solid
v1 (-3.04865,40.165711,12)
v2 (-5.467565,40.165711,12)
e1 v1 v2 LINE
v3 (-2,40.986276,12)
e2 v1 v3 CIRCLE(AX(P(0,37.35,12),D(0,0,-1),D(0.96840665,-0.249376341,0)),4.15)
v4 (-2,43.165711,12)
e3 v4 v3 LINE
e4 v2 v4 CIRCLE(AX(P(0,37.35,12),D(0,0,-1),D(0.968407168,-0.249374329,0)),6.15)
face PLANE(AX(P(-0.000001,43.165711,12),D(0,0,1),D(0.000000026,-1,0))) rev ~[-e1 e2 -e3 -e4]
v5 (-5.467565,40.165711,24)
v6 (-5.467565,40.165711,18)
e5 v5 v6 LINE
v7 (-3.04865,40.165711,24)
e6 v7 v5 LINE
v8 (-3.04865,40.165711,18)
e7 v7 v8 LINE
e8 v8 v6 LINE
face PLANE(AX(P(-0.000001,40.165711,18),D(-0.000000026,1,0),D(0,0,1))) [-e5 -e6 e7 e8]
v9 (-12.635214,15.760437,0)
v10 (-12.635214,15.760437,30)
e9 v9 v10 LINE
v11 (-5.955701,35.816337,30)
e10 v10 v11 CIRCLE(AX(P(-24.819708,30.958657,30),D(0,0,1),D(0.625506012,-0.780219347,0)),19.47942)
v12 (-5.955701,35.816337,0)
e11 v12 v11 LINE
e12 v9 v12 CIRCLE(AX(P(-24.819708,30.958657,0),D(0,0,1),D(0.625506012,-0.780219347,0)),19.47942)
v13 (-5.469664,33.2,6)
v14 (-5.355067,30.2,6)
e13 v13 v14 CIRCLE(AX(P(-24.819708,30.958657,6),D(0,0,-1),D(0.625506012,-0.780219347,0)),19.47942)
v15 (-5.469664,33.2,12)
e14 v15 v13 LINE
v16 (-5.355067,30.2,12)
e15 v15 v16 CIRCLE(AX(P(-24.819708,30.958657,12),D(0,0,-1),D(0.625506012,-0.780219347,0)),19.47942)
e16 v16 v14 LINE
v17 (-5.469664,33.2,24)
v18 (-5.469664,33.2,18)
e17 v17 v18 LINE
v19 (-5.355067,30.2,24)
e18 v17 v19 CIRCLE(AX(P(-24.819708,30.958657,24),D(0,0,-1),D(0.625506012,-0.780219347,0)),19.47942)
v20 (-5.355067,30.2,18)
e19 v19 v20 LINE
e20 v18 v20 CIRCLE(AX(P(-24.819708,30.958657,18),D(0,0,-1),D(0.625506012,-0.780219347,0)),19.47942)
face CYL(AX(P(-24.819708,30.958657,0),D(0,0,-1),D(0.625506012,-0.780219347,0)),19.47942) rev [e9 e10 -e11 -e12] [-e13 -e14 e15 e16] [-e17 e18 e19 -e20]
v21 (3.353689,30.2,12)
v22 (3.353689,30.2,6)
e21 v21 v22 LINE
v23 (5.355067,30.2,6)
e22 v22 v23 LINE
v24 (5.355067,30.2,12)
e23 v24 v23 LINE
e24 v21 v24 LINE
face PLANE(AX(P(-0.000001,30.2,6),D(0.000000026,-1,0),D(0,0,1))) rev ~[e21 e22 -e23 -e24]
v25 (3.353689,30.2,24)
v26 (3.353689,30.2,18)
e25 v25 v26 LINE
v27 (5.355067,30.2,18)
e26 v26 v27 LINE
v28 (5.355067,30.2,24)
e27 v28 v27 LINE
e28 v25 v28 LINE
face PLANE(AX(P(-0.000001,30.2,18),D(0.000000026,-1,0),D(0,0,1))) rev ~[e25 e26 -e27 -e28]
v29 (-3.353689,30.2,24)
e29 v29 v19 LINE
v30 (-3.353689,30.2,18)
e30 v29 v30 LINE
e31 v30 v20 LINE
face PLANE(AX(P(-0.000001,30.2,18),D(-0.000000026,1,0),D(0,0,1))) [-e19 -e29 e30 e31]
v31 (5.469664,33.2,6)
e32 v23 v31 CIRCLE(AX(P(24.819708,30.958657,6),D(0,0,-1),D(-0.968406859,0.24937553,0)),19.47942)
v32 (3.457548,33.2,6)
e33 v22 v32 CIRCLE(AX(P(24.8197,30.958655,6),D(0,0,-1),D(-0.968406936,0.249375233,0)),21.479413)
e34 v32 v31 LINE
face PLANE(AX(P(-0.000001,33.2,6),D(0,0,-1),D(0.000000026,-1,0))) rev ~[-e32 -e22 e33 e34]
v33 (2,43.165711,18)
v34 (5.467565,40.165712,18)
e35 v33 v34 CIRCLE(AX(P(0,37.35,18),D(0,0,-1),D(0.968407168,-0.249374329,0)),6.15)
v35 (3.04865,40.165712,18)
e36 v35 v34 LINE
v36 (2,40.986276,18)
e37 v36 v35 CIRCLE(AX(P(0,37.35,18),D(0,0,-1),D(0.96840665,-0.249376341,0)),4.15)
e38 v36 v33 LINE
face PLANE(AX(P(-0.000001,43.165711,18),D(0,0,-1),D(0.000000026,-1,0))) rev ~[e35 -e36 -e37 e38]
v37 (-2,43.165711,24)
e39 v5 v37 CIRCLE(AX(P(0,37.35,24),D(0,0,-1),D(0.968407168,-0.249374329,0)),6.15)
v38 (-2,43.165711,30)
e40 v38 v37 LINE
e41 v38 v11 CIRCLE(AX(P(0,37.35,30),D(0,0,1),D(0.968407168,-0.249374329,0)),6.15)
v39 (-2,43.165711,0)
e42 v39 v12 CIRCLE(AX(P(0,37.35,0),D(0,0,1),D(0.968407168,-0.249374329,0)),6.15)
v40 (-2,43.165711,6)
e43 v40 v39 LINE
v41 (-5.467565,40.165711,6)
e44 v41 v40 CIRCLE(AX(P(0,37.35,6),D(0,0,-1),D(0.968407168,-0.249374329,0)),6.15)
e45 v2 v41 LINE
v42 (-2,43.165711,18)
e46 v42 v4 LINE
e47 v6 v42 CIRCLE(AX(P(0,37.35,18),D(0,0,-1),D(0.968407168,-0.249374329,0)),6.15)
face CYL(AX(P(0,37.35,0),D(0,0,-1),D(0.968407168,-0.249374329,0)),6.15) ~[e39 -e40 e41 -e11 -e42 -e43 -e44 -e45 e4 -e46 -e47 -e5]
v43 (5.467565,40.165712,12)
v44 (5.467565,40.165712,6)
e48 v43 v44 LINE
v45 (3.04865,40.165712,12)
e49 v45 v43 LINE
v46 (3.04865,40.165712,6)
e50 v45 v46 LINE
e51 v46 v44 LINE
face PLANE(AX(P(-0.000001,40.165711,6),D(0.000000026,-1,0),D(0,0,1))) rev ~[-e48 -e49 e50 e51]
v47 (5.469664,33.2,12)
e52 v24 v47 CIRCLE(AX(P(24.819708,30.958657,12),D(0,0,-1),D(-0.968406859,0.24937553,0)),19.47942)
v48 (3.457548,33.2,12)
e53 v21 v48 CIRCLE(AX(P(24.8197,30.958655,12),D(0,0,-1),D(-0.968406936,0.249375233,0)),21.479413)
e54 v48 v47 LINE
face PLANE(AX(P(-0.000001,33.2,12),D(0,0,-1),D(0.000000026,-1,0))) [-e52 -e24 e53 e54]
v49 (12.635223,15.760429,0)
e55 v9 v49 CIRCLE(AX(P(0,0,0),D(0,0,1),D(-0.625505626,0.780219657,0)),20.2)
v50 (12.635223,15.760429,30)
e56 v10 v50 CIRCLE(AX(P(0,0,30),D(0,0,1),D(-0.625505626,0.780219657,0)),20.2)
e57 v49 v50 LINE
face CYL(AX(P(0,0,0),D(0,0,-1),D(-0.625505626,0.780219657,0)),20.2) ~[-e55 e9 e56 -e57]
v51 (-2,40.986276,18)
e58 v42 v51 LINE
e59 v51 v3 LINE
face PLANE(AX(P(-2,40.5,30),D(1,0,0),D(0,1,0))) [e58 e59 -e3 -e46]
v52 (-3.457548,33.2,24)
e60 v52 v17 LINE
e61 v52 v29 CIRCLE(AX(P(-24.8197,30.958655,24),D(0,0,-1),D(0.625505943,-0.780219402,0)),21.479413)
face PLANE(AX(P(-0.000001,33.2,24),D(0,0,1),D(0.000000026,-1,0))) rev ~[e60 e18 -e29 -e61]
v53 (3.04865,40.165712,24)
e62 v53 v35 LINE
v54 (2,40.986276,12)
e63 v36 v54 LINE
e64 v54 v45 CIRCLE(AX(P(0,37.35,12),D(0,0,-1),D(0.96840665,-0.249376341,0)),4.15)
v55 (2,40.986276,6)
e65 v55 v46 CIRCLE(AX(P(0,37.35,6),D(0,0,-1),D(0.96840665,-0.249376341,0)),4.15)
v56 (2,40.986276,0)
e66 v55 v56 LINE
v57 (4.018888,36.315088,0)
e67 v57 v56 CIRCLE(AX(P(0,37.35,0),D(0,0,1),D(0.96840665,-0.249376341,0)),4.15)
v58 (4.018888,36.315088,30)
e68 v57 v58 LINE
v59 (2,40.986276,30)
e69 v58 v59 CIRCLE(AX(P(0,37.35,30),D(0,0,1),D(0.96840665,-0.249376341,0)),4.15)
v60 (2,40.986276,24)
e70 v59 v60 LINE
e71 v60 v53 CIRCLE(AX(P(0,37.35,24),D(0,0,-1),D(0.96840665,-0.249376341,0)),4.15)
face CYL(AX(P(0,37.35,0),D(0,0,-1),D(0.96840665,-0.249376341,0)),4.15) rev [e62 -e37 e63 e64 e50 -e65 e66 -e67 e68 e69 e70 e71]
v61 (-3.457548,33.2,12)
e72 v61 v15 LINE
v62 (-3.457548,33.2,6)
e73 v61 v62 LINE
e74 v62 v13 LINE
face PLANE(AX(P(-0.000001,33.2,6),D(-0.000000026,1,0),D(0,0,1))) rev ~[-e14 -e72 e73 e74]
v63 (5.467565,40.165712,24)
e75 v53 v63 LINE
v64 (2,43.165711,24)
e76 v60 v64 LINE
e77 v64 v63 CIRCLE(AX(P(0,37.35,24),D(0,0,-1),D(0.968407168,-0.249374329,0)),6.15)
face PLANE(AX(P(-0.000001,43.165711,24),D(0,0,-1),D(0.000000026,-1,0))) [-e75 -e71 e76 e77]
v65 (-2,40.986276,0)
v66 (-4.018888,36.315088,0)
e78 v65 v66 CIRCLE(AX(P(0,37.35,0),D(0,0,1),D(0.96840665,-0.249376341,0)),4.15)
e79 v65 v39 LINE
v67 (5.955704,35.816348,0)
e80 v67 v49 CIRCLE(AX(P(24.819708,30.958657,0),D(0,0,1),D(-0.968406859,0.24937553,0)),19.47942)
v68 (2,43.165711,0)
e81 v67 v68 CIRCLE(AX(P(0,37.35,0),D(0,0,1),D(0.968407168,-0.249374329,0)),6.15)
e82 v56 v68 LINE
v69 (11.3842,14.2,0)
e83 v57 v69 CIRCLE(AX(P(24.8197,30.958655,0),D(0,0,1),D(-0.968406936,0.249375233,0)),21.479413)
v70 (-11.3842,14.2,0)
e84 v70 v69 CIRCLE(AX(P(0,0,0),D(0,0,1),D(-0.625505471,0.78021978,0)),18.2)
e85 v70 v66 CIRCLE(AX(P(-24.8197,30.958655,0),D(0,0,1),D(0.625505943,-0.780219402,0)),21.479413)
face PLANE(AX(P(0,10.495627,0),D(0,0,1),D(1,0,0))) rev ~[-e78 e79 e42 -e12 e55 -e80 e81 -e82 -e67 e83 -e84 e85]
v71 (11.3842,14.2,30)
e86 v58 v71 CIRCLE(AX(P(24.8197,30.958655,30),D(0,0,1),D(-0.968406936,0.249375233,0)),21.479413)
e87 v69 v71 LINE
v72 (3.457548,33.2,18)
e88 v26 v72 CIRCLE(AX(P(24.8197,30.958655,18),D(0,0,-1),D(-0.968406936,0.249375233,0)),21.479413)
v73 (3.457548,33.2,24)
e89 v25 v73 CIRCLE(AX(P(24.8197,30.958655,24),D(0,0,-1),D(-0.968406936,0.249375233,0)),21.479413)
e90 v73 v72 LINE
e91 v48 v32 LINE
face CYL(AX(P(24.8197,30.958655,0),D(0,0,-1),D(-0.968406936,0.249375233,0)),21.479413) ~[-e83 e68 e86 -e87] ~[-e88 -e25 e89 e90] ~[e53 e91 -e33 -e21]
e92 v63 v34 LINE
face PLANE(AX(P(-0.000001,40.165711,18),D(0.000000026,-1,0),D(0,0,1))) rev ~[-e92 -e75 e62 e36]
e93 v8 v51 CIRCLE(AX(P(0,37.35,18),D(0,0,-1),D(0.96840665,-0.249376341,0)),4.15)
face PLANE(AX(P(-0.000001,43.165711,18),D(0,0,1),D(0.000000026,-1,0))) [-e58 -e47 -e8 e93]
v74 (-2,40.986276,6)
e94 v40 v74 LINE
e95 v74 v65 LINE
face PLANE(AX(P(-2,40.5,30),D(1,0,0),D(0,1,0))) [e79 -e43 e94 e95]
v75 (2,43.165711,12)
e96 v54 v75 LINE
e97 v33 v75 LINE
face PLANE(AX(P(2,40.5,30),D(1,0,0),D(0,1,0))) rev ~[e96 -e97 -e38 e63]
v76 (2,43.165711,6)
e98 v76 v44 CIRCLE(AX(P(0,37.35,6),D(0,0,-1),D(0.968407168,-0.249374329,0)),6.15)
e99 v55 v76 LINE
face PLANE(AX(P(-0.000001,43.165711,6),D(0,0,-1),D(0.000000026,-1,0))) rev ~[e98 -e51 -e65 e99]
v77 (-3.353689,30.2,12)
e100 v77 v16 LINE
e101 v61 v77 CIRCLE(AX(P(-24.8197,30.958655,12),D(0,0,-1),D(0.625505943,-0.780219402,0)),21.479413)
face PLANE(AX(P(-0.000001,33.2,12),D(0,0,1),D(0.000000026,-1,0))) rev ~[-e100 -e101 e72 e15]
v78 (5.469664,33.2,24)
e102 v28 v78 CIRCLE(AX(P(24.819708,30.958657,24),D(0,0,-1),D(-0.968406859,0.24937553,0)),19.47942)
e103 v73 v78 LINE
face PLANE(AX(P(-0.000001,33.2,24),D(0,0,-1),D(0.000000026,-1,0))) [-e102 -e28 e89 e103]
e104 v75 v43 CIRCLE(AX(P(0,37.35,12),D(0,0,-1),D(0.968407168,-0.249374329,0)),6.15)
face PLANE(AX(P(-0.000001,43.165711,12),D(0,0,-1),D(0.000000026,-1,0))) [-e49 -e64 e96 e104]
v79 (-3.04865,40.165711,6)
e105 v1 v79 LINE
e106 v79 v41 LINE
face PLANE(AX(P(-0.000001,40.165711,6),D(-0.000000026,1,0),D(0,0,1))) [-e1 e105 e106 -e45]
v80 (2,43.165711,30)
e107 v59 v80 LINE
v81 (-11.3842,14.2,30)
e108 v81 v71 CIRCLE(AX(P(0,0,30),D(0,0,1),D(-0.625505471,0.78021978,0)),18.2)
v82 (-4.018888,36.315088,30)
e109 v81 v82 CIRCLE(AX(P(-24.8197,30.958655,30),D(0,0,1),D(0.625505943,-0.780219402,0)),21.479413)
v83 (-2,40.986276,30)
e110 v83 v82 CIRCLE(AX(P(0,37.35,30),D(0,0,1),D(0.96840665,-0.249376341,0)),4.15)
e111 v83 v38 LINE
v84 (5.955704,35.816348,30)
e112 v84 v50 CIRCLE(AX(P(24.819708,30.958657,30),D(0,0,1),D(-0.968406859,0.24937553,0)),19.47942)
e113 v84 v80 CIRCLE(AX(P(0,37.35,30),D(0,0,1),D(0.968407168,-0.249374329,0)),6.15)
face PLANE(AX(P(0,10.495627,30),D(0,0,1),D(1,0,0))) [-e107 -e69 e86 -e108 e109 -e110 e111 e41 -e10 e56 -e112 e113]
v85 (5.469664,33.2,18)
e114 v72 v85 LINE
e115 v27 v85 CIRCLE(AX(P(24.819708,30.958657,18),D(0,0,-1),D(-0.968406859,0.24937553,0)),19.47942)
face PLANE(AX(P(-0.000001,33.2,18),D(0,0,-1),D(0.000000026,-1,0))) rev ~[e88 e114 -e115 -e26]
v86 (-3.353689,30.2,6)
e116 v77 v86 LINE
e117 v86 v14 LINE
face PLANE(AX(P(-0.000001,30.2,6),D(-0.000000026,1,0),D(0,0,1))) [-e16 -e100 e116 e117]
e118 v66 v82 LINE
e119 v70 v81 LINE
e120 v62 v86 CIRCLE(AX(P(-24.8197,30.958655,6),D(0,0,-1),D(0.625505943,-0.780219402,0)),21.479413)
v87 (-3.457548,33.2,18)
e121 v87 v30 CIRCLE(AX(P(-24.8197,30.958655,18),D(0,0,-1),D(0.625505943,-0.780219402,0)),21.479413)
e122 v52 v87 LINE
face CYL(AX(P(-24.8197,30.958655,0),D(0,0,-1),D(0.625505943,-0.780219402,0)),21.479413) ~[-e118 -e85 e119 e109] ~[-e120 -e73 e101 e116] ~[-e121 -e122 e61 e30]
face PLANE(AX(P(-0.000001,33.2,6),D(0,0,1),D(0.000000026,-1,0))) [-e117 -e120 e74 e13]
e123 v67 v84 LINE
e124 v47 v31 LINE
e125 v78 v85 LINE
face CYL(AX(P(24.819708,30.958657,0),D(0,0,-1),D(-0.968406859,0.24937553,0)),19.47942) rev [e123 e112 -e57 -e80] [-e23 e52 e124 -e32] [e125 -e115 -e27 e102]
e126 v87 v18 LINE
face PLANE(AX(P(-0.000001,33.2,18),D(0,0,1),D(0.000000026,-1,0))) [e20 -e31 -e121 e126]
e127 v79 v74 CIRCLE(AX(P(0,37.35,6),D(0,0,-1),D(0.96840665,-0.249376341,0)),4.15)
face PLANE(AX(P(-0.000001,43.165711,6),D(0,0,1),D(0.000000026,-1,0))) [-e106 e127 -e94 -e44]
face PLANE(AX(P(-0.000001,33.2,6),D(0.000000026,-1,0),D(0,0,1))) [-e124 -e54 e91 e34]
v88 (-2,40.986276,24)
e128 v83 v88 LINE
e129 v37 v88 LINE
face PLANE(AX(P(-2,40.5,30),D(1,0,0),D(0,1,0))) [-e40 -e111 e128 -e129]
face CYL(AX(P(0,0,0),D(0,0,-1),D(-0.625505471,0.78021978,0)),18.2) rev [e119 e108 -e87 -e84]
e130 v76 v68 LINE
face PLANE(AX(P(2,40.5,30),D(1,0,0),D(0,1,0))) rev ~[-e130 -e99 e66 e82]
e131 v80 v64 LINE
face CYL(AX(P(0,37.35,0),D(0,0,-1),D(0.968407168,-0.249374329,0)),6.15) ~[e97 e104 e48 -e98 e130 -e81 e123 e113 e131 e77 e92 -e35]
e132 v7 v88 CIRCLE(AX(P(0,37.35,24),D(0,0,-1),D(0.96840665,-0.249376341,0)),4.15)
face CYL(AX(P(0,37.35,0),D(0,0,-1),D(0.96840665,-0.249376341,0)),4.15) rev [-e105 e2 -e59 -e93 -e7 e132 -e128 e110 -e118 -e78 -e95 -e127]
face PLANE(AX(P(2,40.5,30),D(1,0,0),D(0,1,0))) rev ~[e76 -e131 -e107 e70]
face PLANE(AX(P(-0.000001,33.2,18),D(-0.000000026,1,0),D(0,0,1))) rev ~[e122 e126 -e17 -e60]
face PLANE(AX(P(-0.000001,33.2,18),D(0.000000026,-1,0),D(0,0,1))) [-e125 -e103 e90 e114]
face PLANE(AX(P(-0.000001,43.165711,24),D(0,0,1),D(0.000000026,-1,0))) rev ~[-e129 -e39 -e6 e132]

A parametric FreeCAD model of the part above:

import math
import FreeCAD as App
import Part
import Sketcher

V = App.Vector


def add_polygon(sketch, points):
    """Adds a closed chain of lines whose ends are joined by coincident constraints."""
    first, n = sketch.GeometryCount, len(points)
    for a, b in zip(points, points[1:] + points[:1]):
        sketch.addGeometry(Part.LineSegment(App.Vector(*a, 0), App.Vector(*b, 0)), False)
    for i in range(n):
        sketch.addConstraint(Sketcher.Constraint("Coincident", first + i, 2, first + (i + 1) % n, 1))

doc = App.newDocument("Part")
params = doc.addObject("Spreadsheet::Sheet", "Params")
for row, (alias, value) in enumerate([
    ("sketch1_radius", "20.2 mm"),
    ("sketch1_radius2", "18.2 mm"),
    ("sketch1_radius3", "6.15 mm"),
    ("pad1_length", "30 mm"),
    ("sketch2_width", "3 mm"),
    ("sketch2_height", "6 mm"),
    ("sketch3_width", "4 mm"),
    ("sketch4_width", "3 mm"),
    ("sketch4_height", "6 mm"),
], start=1):
    params.set(f"A{row}", alias)
    params.set(f"B{row}", "=" + value)
    params.setAlias(f"B{row}", alias)

body = doc.addObject("PartDesign::Body", "Body")

# Sketch on XY plane
sketch1 = body.newObject("Sketcher::SketchObject", "Sketch")
sketch1.AttachmentSupport = (doc.getObject("XY_Plane"), [""])
sketch1.MapMode = "FlatFace"
sketch1.addGeometry(Part.ArcOfCircle(Part.Circle(V(0, 37.35, 0), V(0, 0, 1), 6.15), math.radians(-14.440491), math.radians(194.440595)), False)
sketch1.addGeometry(Part.ArcOfCircle(Part.Circle(V(-24.819708, 30.958657, 0), V(0, 0, 1), 19.47942), math.radians(-51.280663), math.radians(14.44053)), False)
sketch1.addGeometry(Part.ArcOfCircle(Part.Circle(V(0, 0, 0), V(0, 0, 1), 20.2), math.radians(128.719309), math.radians(411.280656)), False)
sketch1.addGeometry(Part.ArcOfCircle(Part.Circle(V(24.819708, 30.958657, 0), V(0, 0, 1), 19.47942), math.radians(165.559438), math.radians(231.280699)), False)
sketch1.addGeometry(Part.ArcOfCircle(Part.Circle(V(0, 37.35, 0), V(0, 0, 1), 4.15), math.radians(-14.44061), math.radians(194.44061)), False)
sketch1.addGeometry(Part.ArcOfCircle(Part.Circle(V(24.8197, 30.958655, 0), V(0, 0, 1), 21.479413), math.radians(165.559455), math.radians(231.280668)), False)
sketch1.addGeometry(Part.ArcOfCircle(Part.Circle(V(0, 0, 0), V(0, 0, 1), 18.2), math.radians(128.719297), math.radians(411.280703)), False)
sketch1.addGeometry(Part.ArcOfCircle(Part.Circle(V(-24.8197, 30.958655, 0), V(0, 0, 1), 21.479413), math.radians(-51.280668), math.radians(14.440545)), False)
sketch1.addConstraint(Sketcher.Constraint("Coincident", 0, 2, 1, 2))
sketch1.addConstraint(Sketcher.Constraint("Coincident", 1, 1, 2, 1))
sketch1.addConstraint(Sketcher.Constraint("Coincident", 2, 2, 3, 2))
sketch1.addConstraint(Sketcher.Constraint("Coincident", 3, 1, 0, 1))
sketch1.addConstraint(Sketcher.Constraint("Coincident", 4, 1, 5, 1))
sketch1.addConstraint(Sketcher.Constraint("Coincident", 5, 2, 6, 2))
sketch1.addConstraint(Sketcher.Constraint("Coincident", 6, 1, 7, 1))
sketch1.addConstraint(Sketcher.Constraint("Coincident", 7, 2, 4, 2))
sketch1.addConstraint(Sketcher.Constraint("Coincident", 2, 3, -1, 1))
sketch1.addConstraint(Sketcher.Constraint("Coincident", 6, 3, -1, 1))
sketch1.addConstraint(Sketcher.Constraint("Coincident", 4, 3, 0, 3))
sketch1.addConstraint(Sketcher.Constraint("Coincident", 5, 3, 3, 3))
sketch1.addConstraint(Sketcher.Constraint("PointOnObject", 0, 3, -2))
sketch1.addConstraint(Sketcher.Constraint("Radius", 2, 20.2))
sketch1.addConstraint(Sketcher.Constraint("Radius", 6, 18.2))
sketch1.addConstraint(Sketcher.Constraint("Radius", 0, 6.15))
sketch1.addConstraint(Sketcher.Constraint("DistanceY", -1, 1, 5, 2, 14.2))
sketch1.addConstraint(Sketcher.Constraint("DistanceY", -1, 1, 6, 1, 14.2))
sketch1.addConstraint(Sketcher.Constraint("DistanceY", -1, 1, 0, 3, 37.35))
sketch1.addConstraint(Sketcher.Constraint("Radius", 1, 19.47942))
sketch1.addConstraint(Sketcher.Constraint("Radius", 3, 19.47942))
sketch1.addConstraint(Sketcher.Constraint("Radius", 7, 21.479413))
sketch1.addConstraint(Sketcher.Constraint("DistanceX", 7, 3, 0, 2, 18.863999))
sketch1.addConstraint(Sketcher.Constraint("DistanceY", 1, 1, 0, 2, 20.0559))
sketch1.addConstraint(Sketcher.Constraint("DistanceY", -1, 1, 2, 2, 15.760429))
sketch1.addConstraint(Sketcher.Constraint("DistanceY", -1, 1, 4, 1, 36.315088))
sketch1.addConstraint(Sketcher.Constraint("DistanceY", -1, 1, 7, 2, 36.315088))
sketch1.addConstraint(Sketcher.Constraint("DistanceY", 3, 3, 3, 1, 4.857691))
sketch1.setExpression("Constraints[13]", "Params.sketch1_radius")
sketch1.setExpression("Constraints[14]", "Params.sketch1_radius2")
sketch1.setExpression("Constraints[15]", "Params.sketch1_radius3")
pad1 = body.newObject("PartDesign::Pad", "Pad")
pad1.Profile = sketch1
pad1.setExpression("Length", "Params.pad1_length")

# Sketch on YZ plane
sketch2 = body.newObject("Sketcher::SketchObject", "Sketch001")
sketch2.AttachmentSupport = (doc.getObject("YZ_Plane"), [""])
sketch2.MapMode = "FlatFace"
sketch2.AttachmentOffset = App.Placement(V(0, 0, -0.000001), App.Rotation())
add_polygon(sketch2, [(30.2, 6), (33.2, 6), (33.2, 12), (30.2, 12)])  # lines 0-3
add_polygon(sketch2, [(30.2, 18), (33.2, 18), (33.2, 24), (30.2, 24)])  # lines 4-7
sketch2.addConstraint(Sketcher.Constraint("Horizontal", 0))
sketch2.addConstraint(Sketcher.Constraint("Vertical", 1))
sketch2.addConstraint(Sketcher.Constraint("Horizontal", 2))
sketch2.addConstraint(Sketcher.Constraint("Vertical", 3))
sketch2.addConstraint(Sketcher.Constraint("Horizontal", 4))
sketch2.addConstraint(Sketcher.Constraint("Vertical", 5))
sketch2.addConstraint(Sketcher.Constraint("Horizontal", 6))
sketch2.addConstraint(Sketcher.Constraint("Vertical", 7))
sketch2.addConstraint(Sketcher.Constraint("Vertical", 1, 2, 4, 2))
sketch2.addConstraint(Sketcher.Constraint("Vertical", 3, 2, 6, 2))
sketch2.addConstraint(Sketcher.Constraint("Equal", 3, 5))
sketch2.addConstraint(Sketcher.Constraint("DistanceX", 0, 1, 0, 2, 3.0))
sketch2.addConstraint(Sketcher.Constraint("DistanceY", 1, 1, 1, 2, 6.0))
sketch2.addConstraint(Sketcher.Constraint("DistanceY", -1, 1, 0, 2, 6.0))
sketch2.addConstraint(Sketcher.Constraint("DistanceY", -1, 1, 4, 2, 18.0))
sketch2.addConstraint(Sketcher.Constraint("DistanceX", -1, 1, 0, 2, 33.2))
sketch2.setExpression("Constraints[19]", "Params.sketch2_width")
sketch2.setExpression("Constraints[20]", "Params.sketch2_height")
pocket1 = body.newObject("PartDesign::Pocket", "Pocket")
pocket1.Profile = sketch2
pocket1.Type = "ThroughAll"
pocket1.Midplane = True

# Sketch on XY plane
sketch3 = body.newObject("Sketcher::SketchObject", "Sketch002")
sketch3.AttachmentSupport = (doc.getObject("XY_Plane"), [""])
sketch3.MapMode = "FlatFace"
sketch3.AttachmentOffset = App.Placement(V(0, 0, 30), App.Rotation())
add_polygon(sketch3, [(-2, 44.5), (-2, 40.5), (2, 40.5), (2, 44.5)])  # lines 0-3
sketch3.addConstraint(Sketcher.Constraint("Vertical", 0))
sketch3.addConstraint(Sketcher.Constraint("Horizontal", 1))
sketch3.addConstraint(Sketcher.Constraint("Vertical", 2))
sketch3.addConstraint(Sketcher.Constraint("Horizontal", 3))
sketch3.addConstraint(Sketcher.Constraint("Equal", 3, 0))
sketch3.addConstraint(Sketcher.Constraint("DistanceX", 1, 1, 1, 2, 4.0))
sketch3.addConstraint(Sketcher.Constraint("DistanceX", 0, 2, -1, 1, 2.0))
sketch3.addConstraint(Sketcher.Constraint("DistanceY", -1, 1, 0, 2, 40.5))
sketch3.setExpression("Constraints[9]", "Params.sketch3_width")
pocket2 = body.newObject("PartDesign::Pocket", "Pocket001")
pocket2.Profile = sketch3
pocket2.Type = "ThroughAll"

# Sketch on YZ plane
sketch4 = body.newObject("Sketcher::SketchObject", "Sketch003")
sketch4.AttachmentSupport = (doc.getObject("YZ_Plane"), [""])
sketch4.MapMode = "FlatFace"
sketch4.AttachmentOffset = App.Placement(V(0, 0, -0.000001), App.Rotation())
add_polygon(sketch4, [(40.2, 6), (43.2, 6), (43.2, 12), (40.2, 12)])  # lines 0-3
add_polygon(sketch4, [(40.2, 18), (43.2, 18), (43.2, 24), (40.2, 24)])  # lines 4-7
sketch4.addConstraint(Sketcher.Constraint("Horizontal", 0))
sketch4.addConstraint(Sketcher.Constraint("Vertical", 1))
sketch4.addConstraint(Sketcher.Constraint("Horizontal", 2))
sketch4.addConstraint(Sketcher.Constraint("Vertical", 3))
sketch4.addConstraint(Sketcher.Constraint("Horizontal", 4))
sketch4.addConstraint(Sketcher.Constraint("Vertical", 5))
sketch4.addConstraint(Sketcher.Constraint("Horizontal", 6))
sketch4.addConstraint(Sketcher.Constraint("Vertical", 7))
sketch4.addConstraint(Sketcher.Constraint("Vertical", 1, 2, 4, 2))
sketch4.addConstraint(Sketcher.Constraint("Vertical", 3, 2, 6, 2))
sketch4.addConstraint(Sketcher.Constraint("Equal", 3, 5))
sketch4.addConstraint(Sketcher.Constraint("DistanceX", 0, 1, 0, 2, 3.0))
sketch4.addConstraint(Sketcher.Constraint("DistanceY", 1, 1, 1, 2, 6.0))
sketch4.addConstraint(Sketcher.Constraint("DistanceY", -1, 1, 0, 2, 6.0))
sketch4.addConstraint(Sketcher.Constraint("DistanceY", -1, 1, 4, 2, 18.0))
sketch4.addConstraint(Sketcher.Constraint("DistanceX", -1, 1, 0, 2, 43.165711))
sketch4.setExpression("Constraints[19]", "Params.sketch4_width")
sketch4.setExpression("Constraints[20]", "Params.sketch4_height")
pocket3 = body.newObject("PartDesign::Pocket", "Pocket002")
pocket3.Profile = sketch4
pocket3.Type = "ThroughAll"
pocket3.Midplane = True

doc.recompute()
